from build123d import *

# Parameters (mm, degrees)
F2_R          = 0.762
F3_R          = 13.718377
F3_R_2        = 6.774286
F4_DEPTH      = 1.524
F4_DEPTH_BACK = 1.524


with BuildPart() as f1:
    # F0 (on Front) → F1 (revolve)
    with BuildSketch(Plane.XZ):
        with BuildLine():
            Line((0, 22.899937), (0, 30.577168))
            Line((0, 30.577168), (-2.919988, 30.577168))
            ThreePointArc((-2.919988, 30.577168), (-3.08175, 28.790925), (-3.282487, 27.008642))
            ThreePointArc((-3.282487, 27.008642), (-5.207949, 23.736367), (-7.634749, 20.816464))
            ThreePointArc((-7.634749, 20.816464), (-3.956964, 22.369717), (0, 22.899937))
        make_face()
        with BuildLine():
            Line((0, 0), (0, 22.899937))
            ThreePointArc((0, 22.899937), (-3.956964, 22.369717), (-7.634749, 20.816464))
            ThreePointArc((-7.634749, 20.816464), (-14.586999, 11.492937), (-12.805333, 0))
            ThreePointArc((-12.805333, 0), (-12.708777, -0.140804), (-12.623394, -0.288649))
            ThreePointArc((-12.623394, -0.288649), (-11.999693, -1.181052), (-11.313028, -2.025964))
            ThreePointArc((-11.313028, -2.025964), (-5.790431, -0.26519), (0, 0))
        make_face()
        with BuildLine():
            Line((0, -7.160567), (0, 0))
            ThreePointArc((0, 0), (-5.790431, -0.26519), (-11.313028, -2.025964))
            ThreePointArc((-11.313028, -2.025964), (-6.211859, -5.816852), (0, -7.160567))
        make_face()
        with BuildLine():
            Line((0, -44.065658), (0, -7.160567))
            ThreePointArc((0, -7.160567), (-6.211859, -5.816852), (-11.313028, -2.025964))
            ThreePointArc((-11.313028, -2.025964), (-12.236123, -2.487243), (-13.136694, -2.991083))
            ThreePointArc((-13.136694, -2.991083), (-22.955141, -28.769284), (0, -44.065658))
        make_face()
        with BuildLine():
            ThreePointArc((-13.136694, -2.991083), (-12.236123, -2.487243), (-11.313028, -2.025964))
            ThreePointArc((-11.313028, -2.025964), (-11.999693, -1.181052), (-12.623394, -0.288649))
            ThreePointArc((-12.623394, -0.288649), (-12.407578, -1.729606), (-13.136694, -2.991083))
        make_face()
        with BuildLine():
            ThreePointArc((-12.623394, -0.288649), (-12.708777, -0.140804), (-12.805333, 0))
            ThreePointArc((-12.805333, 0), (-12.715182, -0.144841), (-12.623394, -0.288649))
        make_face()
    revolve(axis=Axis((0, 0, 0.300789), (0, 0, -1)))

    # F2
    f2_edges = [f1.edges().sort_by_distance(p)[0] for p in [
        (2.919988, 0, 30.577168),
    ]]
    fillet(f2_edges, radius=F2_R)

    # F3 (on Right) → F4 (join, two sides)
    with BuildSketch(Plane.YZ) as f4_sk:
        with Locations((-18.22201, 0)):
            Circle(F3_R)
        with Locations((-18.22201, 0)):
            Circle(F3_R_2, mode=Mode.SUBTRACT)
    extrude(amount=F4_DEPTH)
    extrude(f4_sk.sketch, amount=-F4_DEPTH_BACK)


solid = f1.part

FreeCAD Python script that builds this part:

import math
import FreeCAD as App
import Part
import Sketcher
Q = App.Units.Quantity


def edges_at(feature, points):
    """Names of the edges that pass closest to the given points."""
    edges = feature.Shape.Edges
    near = lambda p: min(range(len(edges)), key=lambda i: edges[i].distToShape(Part.Vertex(*p))[0])
    return sorted({f"Edge{near(p) + 1}" for p in points})

doc = App.newDocument("Part")
body = doc.addObject("PartDesign::Body", "Body")

sketch1 = body.newObject("Sketcher::SketchObject", "Sketch")
sketch1.AttachmentSupport = (doc.getObject("XZ_Plane"), [""])
sketch1.MapMode = "FlatFace"
sketch1.addGeometry([
    Part.LineSegment(App.Vector(0, 30.58, 0), App.Vector(-2.92, 30.58, 0)),
    Part.ArcOfCircle(Part.Circle(App.Vector(-84.77, 37.09, 0), App.Vector(0, 0, 1), 82.11), math.radians(-7.05), math.radians(-4.55)),
    Part.ArcOfCircle(Part.Circle(App.Vector(-24.45, 37.26, 0), App.Vector(0, 0, 1), 23.52), math.radians(-44.36), math.radians(-25.84)),
    Part.ArcOfCircle(Part.Circle(App.Vector(0, 7.87, 0), App.Vector(0, 0, 1), 15.03), math.radians(121), math.radians(212)),
    Part.ArcOfCircle(Part.Circle(App.Vector(0.01, 7.87, 0), App.Vector(0, 0, 1), 15.04), math.radians(-148.43), math.radians(-147.13)),
    Part.ArcOfCircle(Part.Circle(App.Vector(-14.58, -1.32, 0), App.Vector(0, 0, 1), 2.21), math.radians(-49), math.radians(28)),
    Part.ArcOfCircle(Part.Circle(App.Vector(-1.89, -22.03, 0), App.Vector(0, 0, 1), 22.11), math.radians(121), math.radians(275)),
    Part.LineSegment(App.Vector(0, -44.07, 0), App.Vector(0, 30.58, 0)),
], False)
sketch1.addConstraint([
    Sketcher.Constraint("Coincident", 0, 2, 1, 2),
    Sketcher.Constraint("Coincident", 1, 1, 2, 2),
    Sketcher.Constraint("Coincident", 2, 1, 3, 1),
    Sketcher.Constraint("Coincident", 3, 2, 4, 1),
    Sketcher.Constraint("Coincident", 4, 2, 5, 2),
    Sketcher.Constraint("Coincident", 5, 1, 6, 1),
    Sketcher.Constraint("Coincident", 6, 2, 7, 1),
    Sketcher.Constraint("Coincident", 7, 2, 0, 1),
    Sketcher.Constraint("Horizontal", 0),
    Sketcher.Constraint("Vertical", 7),
    Sketcher.Constraint("PointOnObject", 3, 3, -2),
    Sketcher.Constraint("PointOnObject", 3, 2, -1),
    Sketcher.Constraint("PointOnObject", 6, 2, -2),
    Sketcher.Constraint("Radius", 3, Q("15.030252 mm")),
    Sketcher.Constraint("Radius", 4, Q("15.03655 mm")),
    Sketcher.Constraint("Radius", 5, Q("2.207191 mm")),
    Sketcher.Constraint("Radius", 1, Q("82.112966 mm")),
    Sketcher.Constraint("Radius", 2, Q("23.524046 mm")),
    Sketcher.Constraint("Radius", 6, Q("22.113934 mm")),
    Sketcher.Constraint("DistanceX", 0, 2, 0, 1, Q("2.919988 mm")),
    Sketcher.Constraint("DistanceX", 5, 3, -1, 1, Q("14.576 mm")),
    Sketcher.Constraint("DistanceX", 1, 1, 0, 2, Q("0.362499 mm")),
    Sketcher.Constraint("DistanceY", 5, 3, 2, 1, Q("22.1342 mm")),
    Sketcher.Constraint("DistanceY", 4, 2, 4, 3, Q("8.161699 mm")),
    Sketcher.Constraint("DistanceX", 5, 1, 4, 2, Q("0.5133 mm")),
    Sketcher.Constraint("DistanceY", 7, 1, 7, 2, Q("74.642826 mm")),
    Sketcher.Constraint("DistanceY", -1, 1, 1, 3, Q("37.089441 mm")),
    Sketcher.Constraint("DistanceY", -1, 1, 4, 3, Q("7.87305 mm")),
    Sketcher.Constraint("DistanceX", 6, 3, -1, 1, Q("1.892229 mm")),
    Sketcher.Constraint("DistanceY", 6, 3, -1, 1, Q("22.032829 mm")),
])
revolution = body.newObject("PartDesign::Revolution", "Revolution")
revolution.Profile = sketch1
revolution.ReferenceAxis = (sketch1, ["V_Axis"])
revolution.Angle = 360
doc.recompute()

fillet = body.newObject("PartDesign::Fillet", "Fillet")
fillet.Base = (revolution, edges_at(revolution, [(2.92, 0, 30.577)]))
fillet.Radius = Q("0.03 in")

sketch2 = body.newObject("Sketcher::SketchObject", "Sketch001")
sketch2.AttachmentSupport = (doc.getObject("YZ_Plane"), [""])
sketch2.MapMode = "FlatFace"
sketch2.addGeometry([
    Part.Circle(App.Vector(-18, 0, 0), App.Vector(0, 0, 1), 14),
    Part.Circle(App.Vector(-18, 0, 0), App.Vector(0, 0, 1), 7),
], False)
sketch2.addConstraint([
    Sketcher.Constraint("Coincident", 1, 3, 0, 3),
    Sketcher.Constraint("PointOnObject", 0, 3, -1),
    Sketcher.Constraint("Diameter", 0, Q("27.436754 mm")),
    Sketcher.Constraint("Diameter", 1, Q("13.548572 mm")),
    Sketcher.Constraint("DistanceX", 0, 3, -1, 1, Q("18.22201 mm")),
])
pad1 = body.newObject("PartDesign::Pad", "Pad")
pad1.Profile = sketch2
pad1.Type = "TwoLengths"
pad1.Length = Q("0.06 in")
pad1.Length2 = Q("0.06 in")

doc.recompute()
